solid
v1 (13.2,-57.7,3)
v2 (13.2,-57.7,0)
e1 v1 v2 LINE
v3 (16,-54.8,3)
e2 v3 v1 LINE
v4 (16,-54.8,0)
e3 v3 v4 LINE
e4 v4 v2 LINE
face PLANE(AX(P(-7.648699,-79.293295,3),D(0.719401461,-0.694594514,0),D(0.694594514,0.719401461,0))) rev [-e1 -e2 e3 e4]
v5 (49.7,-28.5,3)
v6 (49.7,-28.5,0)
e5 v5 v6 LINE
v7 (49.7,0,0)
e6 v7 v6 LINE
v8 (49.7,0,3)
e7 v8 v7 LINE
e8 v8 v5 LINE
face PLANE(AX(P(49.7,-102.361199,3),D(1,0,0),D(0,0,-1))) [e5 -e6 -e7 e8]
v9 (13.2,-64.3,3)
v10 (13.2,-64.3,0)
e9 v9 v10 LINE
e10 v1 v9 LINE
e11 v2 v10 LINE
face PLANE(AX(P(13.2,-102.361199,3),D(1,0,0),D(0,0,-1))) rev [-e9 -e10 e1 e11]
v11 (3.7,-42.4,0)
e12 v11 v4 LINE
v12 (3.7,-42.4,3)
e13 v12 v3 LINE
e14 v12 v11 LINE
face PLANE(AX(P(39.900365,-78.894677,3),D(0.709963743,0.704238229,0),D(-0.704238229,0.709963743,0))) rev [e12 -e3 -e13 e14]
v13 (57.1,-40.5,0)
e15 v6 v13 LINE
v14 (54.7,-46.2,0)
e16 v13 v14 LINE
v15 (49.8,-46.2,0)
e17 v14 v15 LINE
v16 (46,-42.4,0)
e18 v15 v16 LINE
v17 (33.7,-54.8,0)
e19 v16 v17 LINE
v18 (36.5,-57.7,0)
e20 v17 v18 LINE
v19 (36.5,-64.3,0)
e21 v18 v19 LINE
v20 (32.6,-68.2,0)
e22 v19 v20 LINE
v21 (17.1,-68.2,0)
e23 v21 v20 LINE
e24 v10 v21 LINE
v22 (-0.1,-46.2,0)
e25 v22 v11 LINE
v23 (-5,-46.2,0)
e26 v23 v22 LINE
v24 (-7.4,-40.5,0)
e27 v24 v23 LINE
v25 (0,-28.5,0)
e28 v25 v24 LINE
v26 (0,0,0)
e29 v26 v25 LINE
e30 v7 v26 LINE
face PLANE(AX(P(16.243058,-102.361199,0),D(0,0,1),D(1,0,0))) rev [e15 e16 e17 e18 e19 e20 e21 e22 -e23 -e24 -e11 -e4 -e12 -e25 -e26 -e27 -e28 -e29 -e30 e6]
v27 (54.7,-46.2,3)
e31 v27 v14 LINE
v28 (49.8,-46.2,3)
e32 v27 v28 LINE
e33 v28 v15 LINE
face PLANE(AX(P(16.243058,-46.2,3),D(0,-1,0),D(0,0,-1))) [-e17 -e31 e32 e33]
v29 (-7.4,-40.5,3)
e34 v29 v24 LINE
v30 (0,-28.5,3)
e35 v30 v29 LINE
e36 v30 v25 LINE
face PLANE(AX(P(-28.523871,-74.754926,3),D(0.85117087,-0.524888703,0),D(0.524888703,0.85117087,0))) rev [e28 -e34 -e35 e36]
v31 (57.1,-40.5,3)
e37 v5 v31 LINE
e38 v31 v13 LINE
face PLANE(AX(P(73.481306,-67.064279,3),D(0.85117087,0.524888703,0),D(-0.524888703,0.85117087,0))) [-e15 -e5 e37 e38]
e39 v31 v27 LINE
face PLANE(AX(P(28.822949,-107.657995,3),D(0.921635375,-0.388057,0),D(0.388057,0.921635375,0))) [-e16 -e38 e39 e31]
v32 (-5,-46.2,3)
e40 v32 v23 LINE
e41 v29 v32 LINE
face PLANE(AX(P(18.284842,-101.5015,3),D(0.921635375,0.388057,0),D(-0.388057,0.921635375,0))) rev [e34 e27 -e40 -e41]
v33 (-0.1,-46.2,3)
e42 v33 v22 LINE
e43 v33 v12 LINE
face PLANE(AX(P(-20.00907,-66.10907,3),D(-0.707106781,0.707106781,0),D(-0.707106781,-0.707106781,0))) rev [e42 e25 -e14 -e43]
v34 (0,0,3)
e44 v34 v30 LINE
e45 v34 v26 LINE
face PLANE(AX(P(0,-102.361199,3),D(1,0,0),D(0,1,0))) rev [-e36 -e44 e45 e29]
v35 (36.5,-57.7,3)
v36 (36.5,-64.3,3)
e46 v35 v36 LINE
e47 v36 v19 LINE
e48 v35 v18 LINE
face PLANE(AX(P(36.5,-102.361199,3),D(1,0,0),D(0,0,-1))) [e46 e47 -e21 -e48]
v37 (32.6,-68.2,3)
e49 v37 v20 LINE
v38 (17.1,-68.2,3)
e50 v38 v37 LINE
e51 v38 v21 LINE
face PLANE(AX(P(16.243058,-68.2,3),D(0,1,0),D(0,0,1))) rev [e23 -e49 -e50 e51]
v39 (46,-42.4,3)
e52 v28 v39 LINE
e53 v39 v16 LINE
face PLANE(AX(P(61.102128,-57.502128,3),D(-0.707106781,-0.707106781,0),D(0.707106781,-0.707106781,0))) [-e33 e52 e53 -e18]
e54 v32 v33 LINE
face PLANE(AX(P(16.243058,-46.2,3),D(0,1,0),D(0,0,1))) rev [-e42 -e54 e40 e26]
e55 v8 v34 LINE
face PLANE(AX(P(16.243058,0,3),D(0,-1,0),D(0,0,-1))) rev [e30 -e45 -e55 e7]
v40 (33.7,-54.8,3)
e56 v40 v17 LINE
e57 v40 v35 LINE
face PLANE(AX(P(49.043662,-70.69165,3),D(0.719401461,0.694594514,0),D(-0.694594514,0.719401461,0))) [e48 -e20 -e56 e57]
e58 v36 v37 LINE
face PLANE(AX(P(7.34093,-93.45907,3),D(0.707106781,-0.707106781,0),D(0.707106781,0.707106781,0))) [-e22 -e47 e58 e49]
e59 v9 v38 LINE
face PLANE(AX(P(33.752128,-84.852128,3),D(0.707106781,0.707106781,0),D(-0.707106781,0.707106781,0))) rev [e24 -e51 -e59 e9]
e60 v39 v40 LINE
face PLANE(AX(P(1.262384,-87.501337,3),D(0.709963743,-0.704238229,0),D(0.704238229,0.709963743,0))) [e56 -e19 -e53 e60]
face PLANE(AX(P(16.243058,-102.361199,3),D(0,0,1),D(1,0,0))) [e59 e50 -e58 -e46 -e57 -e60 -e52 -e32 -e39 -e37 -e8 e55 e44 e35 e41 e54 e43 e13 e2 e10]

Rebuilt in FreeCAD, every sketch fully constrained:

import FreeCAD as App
import Part
import Sketcher
from FreeCAD import Vector
Q = App.Units.Quantity

doc = App.newDocument("Part")
body = doc.addObject("PartDesign::Body", "Body")

# Sketch on XY plane
sketch1 = body.newObject("Sketcher::SketchObject", "Sketch")
sketch1.AttachmentSupport = (doc.getObject("XY_Plane"), [""])
sketch1.MapMode = "FlatFace"
sketch1.addGeometry([
    Part.LineSegment(Vector(49.7, 0, 0), Vector(0, 0, 0)),  # 0
    Part.LineSegment(Vector(0, 0, 0), Vector(0, -28.5, 0)),  # 1
    Part.LineSegment(Vector(0, -28.5, 0), Vector(-7.4, -40.5, 0)),  # 2
    Part.LineSegment(Vector(-7.4, -40.5, 0), Vector(-5, -46.2, 0)),  # 3
    Part.LineSegment(Vector(-5, -46.2, 0), Vector(-0.1, -46.2, 0)),  # 4
    Part.LineSegment(Vector(-0.1, -46.2, 0), Vector(3.7, -42.4, 0)),  # 5
    Part.LineSegment(Vector(3.7, -42.4, 0), Vector(16, -54.8, 0)),  # 6
    Part.LineSegment(Vector(16, -54.8, 0), Vector(13.2, -57.7, 0)),  # 7
    Part.LineSegment(Vector(13.2, -57.7, 0), Vector(13.2, -64.3, 0)),  # 8
    Part.LineSegment(Vector(13.2, -64.3, 0), Vector(17.1, -68.2, 0)),  # 9
    Part.LineSegment(Vector(17.1, -68.2, 0), Vector(32.6, -68.2, 0)),  # 10
    Part.LineSegment(Vector(32.6, -68.2, 0), Vector(36.5, -64.3, 0)),  # 11
    Part.LineSegment(Vector(36.5, -64.3, 0), Vector(36.5, -57.7, 0)),  # 12
    Part.LineSegment(Vector(36.5, -57.7, 0), Vector(33.7, -54.8, 0)),  # 13
    Part.LineSegment(Vector(33.7, -54.8, 0), Vector(46, -42.4, 0)),  # 14
    Part.LineSegment(Vector(46, -42.4, 0), Vector(49.8, -46.2, 0)),  # 15
    Part.LineSegment(Vector(49.8, -46.2, 0), Vector(54.7, -46.2, 0)),  # 16
    Part.LineSegment(Vector(54.7, -46.2, 0), Vector(57.1, -40.5, 0)),  # 17
    Part.LineSegment(Vector(57.1, -40.5, 0), Vector(49.7, -28.5, 0)),  # 18
    Part.LineSegment(Vector(49.7, -28.5, 0), Vector(49.7, 0, 0)),  # 19
], False)
sketch1.addConstraint([
    Sketcher.Constraint("Coincident", 0, 2, 1, 1),
    Sketcher.Constraint("Coincident", 1, 2, 2, 1),
    Sketcher.Constraint("Coincident", 2, 2, 3, 1),
    Sketcher.Constraint("Coincident", 3, 2, 4, 1),
    Sketcher.Constraint("Coincident", 4, 2, 5, 1),
    Sketcher.Constraint("Coincident", 5, 2, 6, 1),
    Sketcher.Constraint("Coincident", 6, 2, 7, 1),
    Sketcher.Constraint("Coincident", 7, 2, 8, 1),
    Sketcher.Constraint("Coincident", 8, 2, 9, 1),
    Sketcher.Constraint("Coincident", 9, 2, 10, 1),
    Sketcher.Constraint("Coincident", 10, 2, 11, 1),
    Sketcher.Constraint("Coincident", 11, 2, 12, 1),
    Sketcher.Constraint("Coincident", 12, 2, 13, 1),
    Sketcher.Constraint("Coincident", 13, 2, 14, 1),
    Sketcher.Constraint("Coincident", 14, 2, 15, 1),
    Sketcher.Constraint("Coincident", 15, 2, 16, 1),
    Sketcher.Constraint("Coincident", 16, 2, 17, 1),
    Sketcher.Constraint("Coincident", 17, 2, 18, 1),
    Sketcher.Constraint("Coincident", 18, 2, 19, 1),
    Sketcher.Constraint("Coincident", 19, 2, 0, 1),
    Sketcher.Constraint("Horizontal", 0),
    Sketcher.Constraint("Vertical", 1),
    Sketcher.Constraint("Horizontal", 4),
    Sketcher.Constraint("Vertical", 8),
    Sketcher.Constraint("Horizontal", 10),
    Sketcher.Constraint("Vertical", 12),
    Sketcher.Constraint("Horizontal", 16),
    Sketcher.Constraint("Vertical", 19),
    Sketcher.Constraint("Coincident", 0, 2, -1, 1),
    Sketcher.Constraint("Perpendicular", 5, 9),
    Sketcher.Constraint("Perpendicular", 9, 11),
    Sketcher.Constraint("Perpendicular", 11, 15),
    Sketcher.Constraint("Horizontal", 8, 2, 11, 2),
    Sketcher.Constraint("Horizontal", 7, 2, 12, 2),
    Sketcher.Constraint("Horizontal", 6, 2, 13, 2),
    Sketcher.Constraint("Horizontal", 5, 2, 14, 2),
    Sketcher.Constraint("Horizontal", 4, 2, 15, 2),
    Sketcher.Constraint("Horizontal", 2, 2, 17, 2),
    Sketcher.Constraint("Horizontal", 1, 2, 18, 2),
    Sketcher.Constraint("Equal", 4, 16),
    Sketcher.Constraint("Equal", 9, 11),
    Sketcher.Constraint("Equal", 7, 13),
    Sketcher.Constraint("Equal", 6, 14),
    Sketcher.Constraint("Equal", 3, 17),
    Sketcher.Constraint("Equal", 2, 18),
    Sketcher.Constraint("DistanceX", 0, 2, 0, 1, Q("49.7 mm")),
    Sketcher.Constraint("DistanceX", 4, 1, 4, 2, Q("4.9 mm")),
    Sketcher.Constraint("DistanceX", 10, 1, 10, 2, Q("15.5 mm")),
    Sketcher.Constraint("DistanceY", 1, 2, 1, 1, Q("28.5 mm")),
    Sketcher.Constraint("DistanceY", 8, 2, 8, 1, Q("6.6 mm")),
    Sketcher.Constraint("DistanceX", 3, 2, -1, 1, Q("5 mm")),
    Sketcher.Constraint("DistanceX", -1, 1, 6, 2, Q("16 mm")),
    Sketcher.Constraint("DistanceX", -1, 1, 14, 2, Q("46 mm")),
    Sketcher.Constraint("DistanceY", 2, 2, 1, 2, Q("12 mm")),
    Sketcher.Constraint("DistanceY", 9, 2, 4, 2, Q("22 mm")),
    Sketcher.Constraint("DistanceX", 2, 2, -1, 1, Q("7.4 mm")),
    Sketcher.Constraint("DistanceY", 3, 2, -1, 1, Q("46.2 mm")),
    Sketcher.Constraint("DistanceY", 6, 2, -1, 1, Q("54.8 mm")),
    Sketcher.Constraint("DistanceX", -1, 1, 7, 2, Q("13.2 mm")),
])
pad1 = body.newObject("PartDesign::Pad", "Pad")
pad1.Profile = sketch1
pad1.Length = 3

doc.recompute()
